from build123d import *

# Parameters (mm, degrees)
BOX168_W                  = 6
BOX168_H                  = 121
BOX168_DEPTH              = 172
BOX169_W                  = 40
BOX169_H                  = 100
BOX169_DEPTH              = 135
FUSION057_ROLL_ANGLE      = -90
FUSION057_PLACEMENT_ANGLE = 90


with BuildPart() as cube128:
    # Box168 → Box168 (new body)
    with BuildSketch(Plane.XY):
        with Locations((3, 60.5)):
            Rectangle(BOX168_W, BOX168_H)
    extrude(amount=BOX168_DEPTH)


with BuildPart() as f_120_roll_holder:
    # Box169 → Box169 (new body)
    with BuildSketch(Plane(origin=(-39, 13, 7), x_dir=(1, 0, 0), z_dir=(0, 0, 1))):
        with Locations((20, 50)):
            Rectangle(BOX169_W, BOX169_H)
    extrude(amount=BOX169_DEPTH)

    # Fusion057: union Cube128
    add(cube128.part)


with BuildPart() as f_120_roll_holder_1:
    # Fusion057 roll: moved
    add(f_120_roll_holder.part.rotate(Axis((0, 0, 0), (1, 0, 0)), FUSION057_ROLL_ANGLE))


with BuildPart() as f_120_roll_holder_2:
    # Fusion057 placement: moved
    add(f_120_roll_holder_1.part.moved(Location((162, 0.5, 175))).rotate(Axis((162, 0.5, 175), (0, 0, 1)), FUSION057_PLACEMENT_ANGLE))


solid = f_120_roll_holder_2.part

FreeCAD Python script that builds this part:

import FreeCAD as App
import Part
import Sketcher
from FreeCAD import Vector


def add_polygon(sketch, points):
    """Adds a closed chain of lines whose ends are joined by coincident constraints."""
    first, n = sketch.GeometryCount, len(points)
    for a, b in zip(points, points[1:] + points[:1]):
        sketch.addGeometry(Part.LineSegment(App.Vector(*a, 0), App.Vector(*b, 0)), False)
    for i in range(n):
        sketch.addConstraint(Sketcher.Constraint("Coincident", first + i, 2, first + (i + 1) % n, 1))

doc = App.newDocument("Part")
params = doc.addObject("Spreadsheet::Sheet", "Params")
for row, (alias, value) in enumerate([
    ("sketch1_width", "6 mm"),
    ("sketch1_height", "121 mm"),
    ("pad1_length", "172 mm"),
    ("sketch2_width", "40 mm"),
    ("sketch2_height", "100 mm"),
    ("pad2_length", "135 mm"),
], start=1):
    params.set(f"A{row}", alias)
    params.set(f"B{row}", "=" + value)
    params.setAlias(f"B{row}", alias)

body = doc.addObject("PartDesign::Body", "Body")

# Sketch on XY plane
sketch1 = body.newObject("Sketcher::SketchObject", "Sketch")
sketch1.AttachmentSupport = (doc.getObject("XY_Plane"), [""])
sketch1.MapMode = "FlatFace"
add_polygon(sketch1, [(0, 121), (0, 0), (6, 0), (6, 121)])  # lines 0-3
sketch1.addConstraint([
    Sketcher.Constraint("Vertical", 0),
    Sketcher.Constraint("Horizontal", 1),
    Sketcher.Constraint("Vertical", 2),
    Sketcher.Constraint("Horizontal", 3),
    Sketcher.Constraint("Coincident", 0, 2, -1, 1),
    Sketcher.Constraint("DistanceX", 1, 1, 1, 2, 6.0),
    Sketcher.Constraint("DistanceY", 0, 2, 0, 1, 121.0),
])
sketch1.setExpression("Constraints[9]", "Params.sketch1_width")
sketch1.setExpression("Constraints[10]", "Params.sketch1_height")
pad1 = body.newObject("PartDesign::Pad", "Pad")
pad1.Profile = sketch1
pad1.setExpression("Length", "Params.pad1_length")
body2 = doc.addObject("PartDesign::Body", "Body001")

# Sketch on XY plane
sketch2 = body2.newObject("Sketcher::SketchObject", "Sketch001")
sketch2.AttachmentSupport = (doc.getObject("XY_Plane001"), [""])
sketch2.MapMode = "FlatFace"
sketch2.AttachmentOffset = App.Placement(Vector(0, 0, 7), App.Rotation())
add_polygon(sketch2, [(-39, 113), (-39, 13), (1, 13), (1, 113)])  # lines 0-3
sketch2.addConstraint([
    Sketcher.Constraint("Vertical", 0),
    Sketcher.Constraint("Horizontal", 1),
    Sketcher.Constraint("Vertical", 2),
    Sketcher.Constraint("Horizontal", 3),
    Sketcher.Constraint("DistanceX", 1, 1, 1, 2, 40.0),
    Sketcher.Constraint("DistanceY", 0, 2, 0, 1, 100.0),
    Sketcher.Constraint("DistanceX", 0, 2, -1, 1, 39.0),
    Sketcher.Constraint("DistanceY", -1, 1, 0, 2, 13.0),
])
sketch2.setExpression("Constraints[8]", "Params.sketch2_width")
sketch2.setExpression("Constraints[9]", "Params.sketch2_height")
pad2 = body2.newObject("PartDesign::Pad", "Pad001")
pad2.Profile = sketch2
pad2.setExpression("Length", "Params.pad2_length")
doc.recompute()

boolean = body2.newObject("PartDesign::Boolean", "Boolean")
boolean.Type = "Fuse"
boolean.addObjects([body])
body3 = doc.addObject("PartDesign::Body", "Body002")
doc.recompute()

body2.Placement = App.Placement(Vector(0, 0, 0), App.Rotation(Vector(1, 0, 0), 270))
boolean2 = body3.newObject("PartDesign::Boolean", "Boolean001")
boolean2.Type = "Fuse"
boolean2.addObjects([body2])
body4 = doc.addObject("PartDesign::Body", "Body003")
doc.recompute()

body3.Placement = App.Placement(Vector(162, 0.5, 175), App.Rotation(Vector(0, 0, 1), 90))
boolean3 = body4.newObject("PartDesign::Boolean", "Boolean002")
boolean3.Type = "Fuse"
boolean3.addObjects([body3])

doc.recompute()
